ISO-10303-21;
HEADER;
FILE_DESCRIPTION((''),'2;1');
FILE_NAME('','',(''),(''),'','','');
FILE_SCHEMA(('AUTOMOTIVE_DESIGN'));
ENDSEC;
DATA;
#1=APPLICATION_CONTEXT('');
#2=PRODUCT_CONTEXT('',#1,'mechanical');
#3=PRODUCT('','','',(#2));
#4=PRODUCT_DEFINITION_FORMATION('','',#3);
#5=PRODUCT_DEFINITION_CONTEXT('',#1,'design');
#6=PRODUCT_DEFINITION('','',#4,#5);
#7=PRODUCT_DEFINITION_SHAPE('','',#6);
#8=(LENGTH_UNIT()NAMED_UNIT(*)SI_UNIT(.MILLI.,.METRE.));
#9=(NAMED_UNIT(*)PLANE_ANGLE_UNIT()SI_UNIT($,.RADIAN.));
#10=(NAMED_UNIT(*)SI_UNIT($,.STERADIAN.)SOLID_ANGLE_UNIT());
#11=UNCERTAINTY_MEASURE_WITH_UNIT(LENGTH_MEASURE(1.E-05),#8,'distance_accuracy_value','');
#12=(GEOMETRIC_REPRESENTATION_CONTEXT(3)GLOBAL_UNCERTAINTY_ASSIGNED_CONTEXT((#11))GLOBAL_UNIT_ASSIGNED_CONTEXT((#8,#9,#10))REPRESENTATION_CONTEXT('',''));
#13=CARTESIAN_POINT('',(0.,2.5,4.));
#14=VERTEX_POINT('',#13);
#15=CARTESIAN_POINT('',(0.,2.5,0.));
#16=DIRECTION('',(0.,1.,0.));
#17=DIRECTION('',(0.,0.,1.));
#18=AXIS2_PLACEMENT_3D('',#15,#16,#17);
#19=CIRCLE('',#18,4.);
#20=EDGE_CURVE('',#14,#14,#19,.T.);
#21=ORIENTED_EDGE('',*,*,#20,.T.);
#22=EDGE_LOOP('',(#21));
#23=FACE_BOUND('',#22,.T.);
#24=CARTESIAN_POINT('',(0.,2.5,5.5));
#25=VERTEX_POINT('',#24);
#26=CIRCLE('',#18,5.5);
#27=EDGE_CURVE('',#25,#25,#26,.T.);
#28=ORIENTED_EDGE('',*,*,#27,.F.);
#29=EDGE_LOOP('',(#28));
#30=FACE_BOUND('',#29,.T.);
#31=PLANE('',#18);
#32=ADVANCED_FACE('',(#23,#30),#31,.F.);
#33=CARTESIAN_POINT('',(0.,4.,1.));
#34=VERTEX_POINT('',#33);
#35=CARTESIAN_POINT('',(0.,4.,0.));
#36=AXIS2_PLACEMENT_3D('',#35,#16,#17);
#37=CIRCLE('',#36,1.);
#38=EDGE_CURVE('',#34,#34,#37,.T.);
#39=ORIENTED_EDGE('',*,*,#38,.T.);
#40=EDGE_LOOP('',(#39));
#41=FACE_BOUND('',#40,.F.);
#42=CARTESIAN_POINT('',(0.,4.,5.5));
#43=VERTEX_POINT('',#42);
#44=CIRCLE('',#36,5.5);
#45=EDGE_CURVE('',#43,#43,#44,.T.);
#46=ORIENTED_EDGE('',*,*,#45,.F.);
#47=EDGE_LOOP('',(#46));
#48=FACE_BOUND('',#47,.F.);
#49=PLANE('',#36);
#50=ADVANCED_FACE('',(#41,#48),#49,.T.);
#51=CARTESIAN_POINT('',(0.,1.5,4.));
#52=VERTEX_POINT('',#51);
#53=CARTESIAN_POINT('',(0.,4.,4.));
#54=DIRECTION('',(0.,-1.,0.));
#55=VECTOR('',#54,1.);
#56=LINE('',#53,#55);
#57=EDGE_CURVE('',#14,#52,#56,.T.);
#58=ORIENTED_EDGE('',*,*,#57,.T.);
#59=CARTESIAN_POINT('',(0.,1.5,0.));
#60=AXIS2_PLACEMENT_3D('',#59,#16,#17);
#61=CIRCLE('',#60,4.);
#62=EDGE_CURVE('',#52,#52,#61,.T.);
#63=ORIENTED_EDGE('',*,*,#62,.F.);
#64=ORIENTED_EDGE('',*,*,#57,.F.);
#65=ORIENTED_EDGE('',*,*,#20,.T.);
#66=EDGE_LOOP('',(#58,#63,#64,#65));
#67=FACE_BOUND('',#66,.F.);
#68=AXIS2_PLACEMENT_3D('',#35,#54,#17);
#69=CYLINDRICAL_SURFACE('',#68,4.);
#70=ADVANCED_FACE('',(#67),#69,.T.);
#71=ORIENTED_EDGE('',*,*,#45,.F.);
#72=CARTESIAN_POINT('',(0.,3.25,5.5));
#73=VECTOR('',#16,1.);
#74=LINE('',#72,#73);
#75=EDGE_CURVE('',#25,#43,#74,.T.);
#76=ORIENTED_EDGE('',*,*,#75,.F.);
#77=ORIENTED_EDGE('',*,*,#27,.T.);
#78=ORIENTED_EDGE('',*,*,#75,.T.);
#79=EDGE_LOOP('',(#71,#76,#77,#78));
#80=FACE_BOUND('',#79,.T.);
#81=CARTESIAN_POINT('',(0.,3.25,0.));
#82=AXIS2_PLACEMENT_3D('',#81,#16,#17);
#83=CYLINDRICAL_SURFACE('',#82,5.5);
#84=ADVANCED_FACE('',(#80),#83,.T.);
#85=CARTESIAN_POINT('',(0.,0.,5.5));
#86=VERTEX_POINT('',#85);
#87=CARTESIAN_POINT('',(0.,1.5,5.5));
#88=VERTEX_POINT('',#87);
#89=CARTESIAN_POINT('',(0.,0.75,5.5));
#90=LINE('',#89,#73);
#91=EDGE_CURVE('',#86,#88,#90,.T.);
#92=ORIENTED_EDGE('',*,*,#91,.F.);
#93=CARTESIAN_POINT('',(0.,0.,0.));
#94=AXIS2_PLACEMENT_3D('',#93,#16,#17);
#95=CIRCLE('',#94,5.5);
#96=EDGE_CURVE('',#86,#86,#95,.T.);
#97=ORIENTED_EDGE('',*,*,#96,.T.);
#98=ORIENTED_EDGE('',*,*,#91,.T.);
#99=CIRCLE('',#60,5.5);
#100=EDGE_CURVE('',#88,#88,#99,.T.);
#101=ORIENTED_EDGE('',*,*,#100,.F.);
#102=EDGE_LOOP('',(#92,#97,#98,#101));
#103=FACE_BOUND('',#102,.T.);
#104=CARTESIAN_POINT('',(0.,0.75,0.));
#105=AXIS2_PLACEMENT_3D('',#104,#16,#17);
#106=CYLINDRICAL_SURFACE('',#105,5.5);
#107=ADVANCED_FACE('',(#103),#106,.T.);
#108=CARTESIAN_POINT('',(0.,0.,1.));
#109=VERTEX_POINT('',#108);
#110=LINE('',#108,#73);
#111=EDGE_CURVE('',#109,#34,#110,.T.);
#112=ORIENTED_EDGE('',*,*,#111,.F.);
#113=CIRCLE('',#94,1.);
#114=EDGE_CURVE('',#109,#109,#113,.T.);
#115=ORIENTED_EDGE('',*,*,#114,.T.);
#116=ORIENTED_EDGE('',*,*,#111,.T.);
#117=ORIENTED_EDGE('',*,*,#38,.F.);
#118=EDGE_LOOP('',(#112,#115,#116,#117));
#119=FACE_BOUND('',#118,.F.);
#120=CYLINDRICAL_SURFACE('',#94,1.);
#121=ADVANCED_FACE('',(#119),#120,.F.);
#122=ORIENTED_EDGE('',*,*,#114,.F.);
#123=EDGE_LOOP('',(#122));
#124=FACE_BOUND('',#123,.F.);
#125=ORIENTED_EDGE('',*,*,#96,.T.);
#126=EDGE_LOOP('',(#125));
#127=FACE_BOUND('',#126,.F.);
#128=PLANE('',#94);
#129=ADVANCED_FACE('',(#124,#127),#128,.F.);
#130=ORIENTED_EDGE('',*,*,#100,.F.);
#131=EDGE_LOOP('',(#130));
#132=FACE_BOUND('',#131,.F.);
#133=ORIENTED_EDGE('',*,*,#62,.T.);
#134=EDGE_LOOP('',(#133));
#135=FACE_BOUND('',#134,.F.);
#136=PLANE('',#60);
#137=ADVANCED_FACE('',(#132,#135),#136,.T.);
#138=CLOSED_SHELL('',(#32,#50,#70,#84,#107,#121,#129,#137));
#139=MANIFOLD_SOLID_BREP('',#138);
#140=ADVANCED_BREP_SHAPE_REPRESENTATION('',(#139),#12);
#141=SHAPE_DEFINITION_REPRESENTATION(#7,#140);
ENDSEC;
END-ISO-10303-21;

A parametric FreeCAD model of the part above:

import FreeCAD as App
import Part
import Sketcher

V = App.Vector
Q = App.Units.Quantity


def add_polygon(sketch, points):
    """Adds a closed chain of lines whose ends are joined by coincident constraints."""
    first, n = sketch.GeometryCount, len(points)
    for a, b in zip(points, points[1:] + points[:1]):
        sketch.addGeometry(Part.LineSegment(App.Vector(*a, 0), App.Vector(*b, 0)), False)
    for i in range(n):
        sketch.addConstraint(Sketcher.Constraint("Coincident", first + i, 2, first + (i + 1) % n, 1))

doc = App.newDocument("Part")
params = doc.addObject("Spreadsheet::Sheet", "Params")
for row, (alias, value) in enumerate([
    ("sketch1_width", "1 mm"),
    ("sketch1_width2", "4 mm"),
    ("sketch1_height", "4.5 mm"),
    ("revolution_angle", "360 deg"),
], start=1):
    params.set(f"A{row}", alias)
    params.set(f"B{row}", "=" + value)
    params.setAlias(f"B{row}", alias)

body = doc.addObject("PartDesign::Body", "Body")

# Sketch on YZ plane
sketch1 = doc.addObject("Sketcher::SketchObject", "Sketch")
body.addObject(sketch1)
sketch1.AttachmentSupport = (doc.YZ_Plane, [""])
sketch1.MapMode = "FlatFace"
add_polygon(sketch1, [(4, 1), (4, 5.5), (2.5, 5.5), (2.5, 4), (1.5, 4), (1.5, 5.5), (0, 5.5), (0, 1)])  # lines 0-7
sketch1.addConstraint([
    Sketcher.Constraint("Vertical", 0),
    Sketcher.Constraint("Horizontal", 1),
    Sketcher.Constraint("Vertical", 2),
    Sketcher.Constraint("Horizontal", 3),
    Sketcher.Constraint("Vertical", 4),
    Sketcher.Constraint("Horizontal", 5),
    Sketcher.Constraint("Vertical", 6),
    Sketcher.Constraint("Horizontal", 7),
    Sketcher.Constraint("PointOnObject", 5, 2, -2),
    Sketcher.Constraint("Horizontal", 1, 2, 4, 2),
    Sketcher.Constraint("Equal", 1, 5),
    Sketcher.Constraint("Equal", 5, 2),
    Sketcher.Constraint("DistanceX", 3, 2, 3, 1, Q("1 mm")),
    Sketcher.Constraint("DistanceX", 7, 1, 7, 2, Q("4 mm")),
    Sketcher.Constraint("DistanceY", 0, 1, 0, 2, Q("4.5 mm")),
    Sketcher.Constraint("DistanceY", -1, 1, 2, 2, Q("4 mm")),
])
sketch1.setExpression("Constraints[20]", "Params.sketch1_width")
sketch1.setExpression("Constraints[21]", "Params.sketch1_width2")
sketch1.setExpression("Constraints[22]", "Params.sketch1_height")
revolution = doc.addObject("PartDesign::Revolution", "Revolution")
body.addObject(revolution)
revolution.Profile = sketch1
revolution.ReferenceAxis = (sketch1, ["H_Axis"])
revolution.setExpression("Angle", "Params.revolution_angle")

doc.recompute()
